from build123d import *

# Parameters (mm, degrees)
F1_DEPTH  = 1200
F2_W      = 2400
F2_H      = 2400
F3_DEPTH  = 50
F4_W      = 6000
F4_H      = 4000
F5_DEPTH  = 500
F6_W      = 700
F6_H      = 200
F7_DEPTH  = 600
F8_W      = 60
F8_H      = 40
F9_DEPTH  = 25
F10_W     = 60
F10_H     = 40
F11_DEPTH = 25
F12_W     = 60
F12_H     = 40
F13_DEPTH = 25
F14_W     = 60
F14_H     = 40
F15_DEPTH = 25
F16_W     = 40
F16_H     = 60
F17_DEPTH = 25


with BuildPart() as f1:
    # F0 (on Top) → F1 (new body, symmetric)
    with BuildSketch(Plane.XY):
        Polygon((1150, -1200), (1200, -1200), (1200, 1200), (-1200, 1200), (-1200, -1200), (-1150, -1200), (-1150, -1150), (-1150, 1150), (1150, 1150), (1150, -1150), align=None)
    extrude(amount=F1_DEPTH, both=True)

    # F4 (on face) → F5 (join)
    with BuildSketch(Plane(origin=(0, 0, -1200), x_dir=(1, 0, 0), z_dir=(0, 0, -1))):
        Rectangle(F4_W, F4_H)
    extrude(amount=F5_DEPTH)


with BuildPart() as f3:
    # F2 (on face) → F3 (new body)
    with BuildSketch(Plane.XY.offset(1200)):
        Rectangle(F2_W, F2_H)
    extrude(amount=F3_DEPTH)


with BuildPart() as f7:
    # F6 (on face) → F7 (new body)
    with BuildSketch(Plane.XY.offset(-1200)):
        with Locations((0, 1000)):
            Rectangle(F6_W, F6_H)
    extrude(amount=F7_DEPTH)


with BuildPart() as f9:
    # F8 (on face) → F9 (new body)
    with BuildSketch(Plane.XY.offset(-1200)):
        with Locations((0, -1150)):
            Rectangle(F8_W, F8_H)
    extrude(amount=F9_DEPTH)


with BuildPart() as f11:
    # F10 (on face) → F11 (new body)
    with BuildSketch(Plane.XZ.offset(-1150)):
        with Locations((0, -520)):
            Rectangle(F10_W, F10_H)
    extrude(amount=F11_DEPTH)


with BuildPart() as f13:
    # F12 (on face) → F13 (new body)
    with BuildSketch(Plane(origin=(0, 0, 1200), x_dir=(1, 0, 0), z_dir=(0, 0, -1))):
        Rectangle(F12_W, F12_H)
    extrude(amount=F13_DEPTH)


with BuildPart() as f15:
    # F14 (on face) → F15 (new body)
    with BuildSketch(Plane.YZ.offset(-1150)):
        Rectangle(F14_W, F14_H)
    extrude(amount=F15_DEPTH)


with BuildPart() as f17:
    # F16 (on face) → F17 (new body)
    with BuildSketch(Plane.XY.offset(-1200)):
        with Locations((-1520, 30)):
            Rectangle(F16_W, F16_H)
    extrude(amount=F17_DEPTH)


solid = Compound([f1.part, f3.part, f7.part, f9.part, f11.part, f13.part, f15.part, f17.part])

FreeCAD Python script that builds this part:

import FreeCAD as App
import Part
import Sketcher
from FreeCAD import Vector
Q = App.Units.Quantity


def add_polygon(sketch, points):
    """Adds a closed chain of lines whose ends are joined by coincident constraints."""
    first, n = sketch.GeometryCount, len(points)
    for a, b in zip(points, points[1:] + points[:1]):
        sketch.addGeometry(Part.LineSegment(App.Vector(*a, 0), App.Vector(*b, 0)), False)
    for i in range(n):
        sketch.addConstraint(Sketcher.Constraint("Coincident", first + i, 2, first + (i + 1) % n, 1))

doc = App.newDocument("Part")
body = doc.addObject("PartDesign::Body", "Body")

# Sketch on XY plane
sketch1 = body.newObject("Sketcher::SketchObject", "Sketch")
sketch1.AttachmentSupport = (doc.getObject("XY_Plane"), [""])
sketch1.MapMode = "FlatFace"
add_polygon(sketch1, [(1150, -1200), (1200, -1200), (1200, 1200), (-1200, 1200), (-1200, -1200), (-1150, -1200), (-1150, 1150), (1150, 1150)])  # lines 0-7
sketch1.addConstraint(Sketcher.Constraint("Horizontal", 0))
sketch1.addConstraint(Sketcher.Constraint("Vertical", 1))
sketch1.addConstraint(Sketcher.Constraint("Horizontal", 2))
sketch1.addConstraint(Sketcher.Constraint("Vertical", 3))
sketch1.addConstraint(Sketcher.Constraint("Horizontal", 4))
sketch1.addConstraint(Sketcher.Constraint("Vertical", 5))
sketch1.addConstraint(Sketcher.Constraint("Horizontal", 6))
sketch1.addConstraint(Sketcher.Constraint("Vertical", 7))
sketch1.addConstraint(Sketcher.Constraint("Symmetric", 0, 2, 2, 2, -1, 1))
sketch1.addConstraint(Sketcher.Constraint("Symmetric", 4, 2, 7, 2, -2))
sketch1.addConstraint(Sketcher.Constraint("Equal", 2, 1))
sketch1.addConstraint(Sketcher.Constraint("DistanceX", 0, 1, 0, 2, Q("50 mm")))
sketch1.addConstraint(Sketcher.Constraint("DistanceX", 2, 2, 2, 1, Q("2400 mm")))
sketch1.addConstraint(Sketcher.Constraint("DistanceY", 5, 1, 5, 2, Q("2350 mm")))
pad1 = body.newObject("PartDesign::Pad", "Pad")
pad1.Profile = sketch1
pad1.Length = 2400
pad1.Midplane = True

# Sketch on XY plane
sketch2 = body.newObject("Sketcher::SketchObject", "Sketch001")
sketch2.AttachmentSupport = (doc.getObject("XY_Plane"), [""])
sketch2.MapMode = "FlatFace"
sketch2.AttachmentOffset = App.Placement(Vector(0, 0, -1200), App.Rotation())
add_polygon(sketch2, [(-3000, -2000), (-3000, 2000), (3000, 2000), (3000, -2000)])  # lines 0-3
sketch2.addConstraint(Sketcher.Constraint("Vertical", 0))
sketch2.addConstraint(Sketcher.Constraint("Horizontal", 1))
sketch2.addConstraint(Sketcher.Constraint("Vertical", 2))
sketch2.addConstraint(Sketcher.Constraint("Horizontal", 3))
sketch2.addConstraint(Sketcher.Constraint("Symmetric", 0, 2, 2, 2, -1, 1))
sketch2.addConstraint(Sketcher.Constraint("DistanceX", 1, 1, 1, 2, Q("6000 mm")))
sketch2.addConstraint(Sketcher.Constraint("DistanceY", 0, 1, 0, 2, Q("4000 mm")))
pad2 = body.newObject("PartDesign::Pad", "Pad001")
pad2.Profile = sketch2
pad2.Length = 500
pad2.Reversed = True
body2 = doc.addObject("PartDesign::Body", "Body001")

# Sketch on XY plane
sketch3 = body2.newObject("Sketcher::SketchObject", "Sketch002")
sketch3.AttachmentSupport = (doc.getObject("XY_Plane001"), [""])
sketch3.MapMode = "FlatFace"
sketch3.AttachmentOffset = App.Placement(Vector(0, 0, 1200), App.Rotation())
add_polygon(sketch3, [(-1200, 1200), (-1200, -1200), (1200, -1200), (1200, 1200)])  # lines 0-3
sketch3.addConstraint(Sketcher.Constraint("Vertical", 0))
sketch3.addConstraint(Sketcher.Constraint("Horizontal", 1))
sketch3.addConstraint(Sketcher.Constraint("Vertical", 2))
sketch3.addConstraint(Sketcher.Constraint("Horizontal", 3))
sketch3.addConstraint(Sketcher.Constraint("Symmetric", 0, 2, 2, 2, -1, 1))
sketch3.addConstraint(Sketcher.Constraint("Equal", 3, 0))
sketch3.addConstraint(Sketcher.Constraint("DistanceX", 1, 1, 1, 2, Q("2400 mm")))
pad3 = body2.newObject("PartDesign::Pad", "Pad002")
pad3.Profile = sketch3
pad3.Length = 50
body3 = doc.addObject("PartDesign::Body", "Body002")

# Sketch on XY plane
sketch4 = body3.newObject("Sketcher::SketchObject", "Sketch003")
sketch4.AttachmentSupport = (doc.getObject("XY_Plane002"), [""])
sketch4.MapMode = "FlatFace"
sketch4.AttachmentOffset = App.Placement(Vector(0, 0, -1200), App.Rotation())
add_polygon(sketch4, [(-350, 1100), (-350, 900), (350, 900), (350, 1100)])  # lines 0-3
sketch4.addConstraint(Sketcher.Constraint("Vertical", 0))
sketch4.addConstraint(Sketcher.Constraint("Horizontal", 1))
sketch4.addConstraint(Sketcher.Constraint("Vertical", 2))
sketch4.addConstraint(Sketcher.Constraint("Horizontal", 3))
sketch4.addConstraint(Sketcher.Constraint("DistanceX", 1, 1, 1, 2, Q("700 mm")))
sketch4.addConstraint(Sketcher.Constraint("DistanceY", 0, 2, 0, 1, Q("200 mm")))
sketch4.addConstraint(Sketcher.Constraint("DistanceX", 0, 2, -1, 1, Q("350 mm")))
sketch4.addConstraint(Sketcher.Constraint("DistanceY", -1, 1, 0, 2, Q("900 mm")))
pad4 = body3.newObject("PartDesign::Pad", "Pad003")
pad4.Profile = sketch4
pad4.Length = 600
body4 = doc.addObject("PartDesign::Body", "Body003")

# Sketch on XY plane
sketch5 = body4.newObject("Sketcher::SketchObject", "Sketch004")
sketch5.AttachmentSupport = (doc.getObject("XY_Plane003"), [""])
sketch5.MapMode = "FlatFace"
sketch5.AttachmentOffset = App.Placement(Vector(0, 0, -1200), App.Rotation())
add_polygon(sketch5, [(-30, -1130), (-30, -1170), (30, -1170), (30, -1130)])  # lines 0-3
sketch5.addConstraint(Sketcher.Constraint("Vertical", 0))
sketch5.addConstraint(Sketcher.Constraint("Horizontal", 1))
sketch5.addConstraint(Sketcher.Constraint("Vertical", 2))
sketch5.addConstraint(Sketcher.Constraint("Horizontal", 3))
sketch5.addConstraint(Sketcher.Constraint("DistanceX", 1, 1, 1, 2, Q("60 mm")))
sketch5.addConstraint(Sketcher.Constraint("DistanceY", 0, 2, 0, 1, Q("40 mm")))
sketch5.addConstraint(Sketcher.Constraint("DistanceX", 0, 2, -1, 1, Q("30 mm")))
sketch5.addConstraint(Sketcher.Constraint("DistanceY", 0, 2, -1, 1, Q("1170 mm")))
pad5 = body4.newObject("PartDesign::Pad", "Pad004")
pad5.Profile = sketch5
pad5.Length = 25
body5 = doc.addObject("PartDesign::Body", "Body004")

# Sketch on XZ plane
sketch6 = body5.newObject("Sketcher::SketchObject", "Sketch005")
sketch6.AttachmentSupport = (doc.getObject("XZ_Plane004"), [""])
sketch6.MapMode = "FlatFace"
sketch6.AttachmentOffset = App.Placement(Vector(0, 0, -1150), App.Rotation())
add_polygon(sketch6, [(-30, -500), (-30, -540), (30, -540), (30, -500)])  # lines 0-3
sketch6.addConstraint(Sketcher.Constraint("Vertical", 0))
sketch6.addConstraint(Sketcher.Constraint("Horizontal", 1))
sketch6.addConstraint(Sketcher.Constraint("Vertical", 2))
sketch6.addConstraint(Sketcher.Constraint("Horizontal", 3))
sketch6.addConstraint(Sketcher.Constraint("DistanceX", 1, 1, 1, 2, Q("60 mm")))
sketch6.addConstraint(Sketcher.Constraint("DistanceY", 0, 2, 0, 1, Q("40 mm")))
sketch6.addConstraint(Sketcher.Constraint("DistanceX", 0, 2, -1, 1, Q("30 mm")))
sketch6.addConstraint(Sketcher.Constraint("DistanceY", 0, 2, -1, 1, Q("540 mm")))
pad6 = body5.newObject("PartDesign::Pad", "Pad005")
pad6.Profile = sketch6
pad6.Length = 25
body6 = doc.addObject("PartDesign::Body", "Body005")

# Sketch on XY plane
sketch7 = body6.newObject("Sketcher::SketchObject", "Sketch006")
sketch7.AttachmentSupport = (doc.getObject("XY_Plane005"), [""])
sketch7.MapMode = "FlatFace"
sketch7.AttachmentOffset = App.Placement(Vector(0, 0, 1200), App.Rotation())
add_polygon(sketch7, [(-30, -20), (-30, 20), (30, 20), (30, -20)])  # lines 0-3
sketch7.addConstraint(Sketcher.Constraint("Vertical", 0))
sketch7.addConstraint(Sketcher.Constraint("Horizontal", 1))
sketch7.addConstraint(Sketcher.Constraint("Vertical", 2))
sketch7.addConstraint(Sketcher.Constraint("Horizontal", 3))
sketch7.addConstraint(Sketcher.Constraint("Symmetric", 0, 2, 2, 2, -1, 1))
sketch7.addConstraint(Sketcher.Constraint("DistanceX", 1, 1, 1, 2, Q("60 mm")))
sketch7.addConstraint(Sketcher.Constraint("DistanceY", 0, 1, 0, 2, Q("40 mm")))
pad7 = body6.newObject("PartDesign::Pad", "Pad006")
pad7.Profile = sketch7
pad7.Length = 25
pad7.Reversed = True
body7 = doc.addObject("PartDesign::Body", "Body006")

# Sketch on YZ plane
sketch8 = body7.newObject("Sketcher::SketchObject", "Sketch007")
sketch8.AttachmentSupport = (doc.getObject("YZ_Plane006"), [""])
sketch8.MapMode = "FlatFace"
sketch8.AttachmentOffset = App.Placement(Vector(0, 0, -1150), App.Rotation())
add_polygon(sketch8, [(-30, 20), (-30, -20), (30, -20), (30, 20)])  # lines 0-3
sketch8.addConstraint(Sketcher.Constraint("Vertical", 0))
sketch8.addConstraint(Sketcher.Constraint("Horizontal", 1))
sketch8.addConstraint(Sketcher.Constraint("Vertical", 2))
sketch8.addConstraint(Sketcher.Constraint("Horizontal", 3))
sketch8.addConstraint(Sketcher.Constraint("Symmetric", 0, 2, 2, 2, -1, 1))
sketch8.addConstraint(Sketcher.Constraint("DistanceX", 1, 1, 1, 2, Q("60 mm")))
sketch8.addConstraint(Sketcher.Constraint("DistanceY", 0, 2, 0, 1, Q("40 mm")))
pad8 = body7.newObject("PartDesign::Pad", "Pad007")
pad8.Profile = sketch8
pad8.Length = 25
body8 = doc.addObject("PartDesign::Body", "Body007")

# Sketch on XY plane
sketch9 = body8.newObject("Sketcher::SketchObject", "Sketch008")
sketch9.AttachmentSupport = (doc.getObject("XY_Plane007"), [""])
sketch9.MapMode = "FlatFace"
sketch9.AttachmentOffset = App.Placement(Vector(0, 0, -1200), App.Rotation())
add_polygon(sketch9, [(-1540, 60), (-1540, 0), (-1500, 0), (-1500, 60)])  # lines 0-3
sketch9.addConstraint(Sketcher.Constraint("Vertical", 0))
sketch9.addConstraint(Sketcher.Constraint("Horizontal", 1))
sketch9.addConstraint(Sketcher.Constraint("Vertical", 2))
sketch9.addConstraint(Sketcher.Constraint("Horizontal", 3))
sketch9.addConstraint(Sketcher.Constraint("PointOnObject", 0, 2, -1))
sketch9.addConstraint(Sketcher.Constraint("DistanceX", 1, 1, 1, 2, Q("40 mm")))
sketch9.addConstraint(Sketcher.Constraint("DistanceY", 0, 2, 0, 1, Q("60 mm")))
sketch9.addConstraint(Sketcher.Constraint("DistanceX", 0, 2, -1, 1, Q("1540 mm")))
pad9 = body8.newObject("PartDesign::Pad", "Pad008")
pad9.Profile = sketch9
pad9.Length = 25

doc.recompute()
